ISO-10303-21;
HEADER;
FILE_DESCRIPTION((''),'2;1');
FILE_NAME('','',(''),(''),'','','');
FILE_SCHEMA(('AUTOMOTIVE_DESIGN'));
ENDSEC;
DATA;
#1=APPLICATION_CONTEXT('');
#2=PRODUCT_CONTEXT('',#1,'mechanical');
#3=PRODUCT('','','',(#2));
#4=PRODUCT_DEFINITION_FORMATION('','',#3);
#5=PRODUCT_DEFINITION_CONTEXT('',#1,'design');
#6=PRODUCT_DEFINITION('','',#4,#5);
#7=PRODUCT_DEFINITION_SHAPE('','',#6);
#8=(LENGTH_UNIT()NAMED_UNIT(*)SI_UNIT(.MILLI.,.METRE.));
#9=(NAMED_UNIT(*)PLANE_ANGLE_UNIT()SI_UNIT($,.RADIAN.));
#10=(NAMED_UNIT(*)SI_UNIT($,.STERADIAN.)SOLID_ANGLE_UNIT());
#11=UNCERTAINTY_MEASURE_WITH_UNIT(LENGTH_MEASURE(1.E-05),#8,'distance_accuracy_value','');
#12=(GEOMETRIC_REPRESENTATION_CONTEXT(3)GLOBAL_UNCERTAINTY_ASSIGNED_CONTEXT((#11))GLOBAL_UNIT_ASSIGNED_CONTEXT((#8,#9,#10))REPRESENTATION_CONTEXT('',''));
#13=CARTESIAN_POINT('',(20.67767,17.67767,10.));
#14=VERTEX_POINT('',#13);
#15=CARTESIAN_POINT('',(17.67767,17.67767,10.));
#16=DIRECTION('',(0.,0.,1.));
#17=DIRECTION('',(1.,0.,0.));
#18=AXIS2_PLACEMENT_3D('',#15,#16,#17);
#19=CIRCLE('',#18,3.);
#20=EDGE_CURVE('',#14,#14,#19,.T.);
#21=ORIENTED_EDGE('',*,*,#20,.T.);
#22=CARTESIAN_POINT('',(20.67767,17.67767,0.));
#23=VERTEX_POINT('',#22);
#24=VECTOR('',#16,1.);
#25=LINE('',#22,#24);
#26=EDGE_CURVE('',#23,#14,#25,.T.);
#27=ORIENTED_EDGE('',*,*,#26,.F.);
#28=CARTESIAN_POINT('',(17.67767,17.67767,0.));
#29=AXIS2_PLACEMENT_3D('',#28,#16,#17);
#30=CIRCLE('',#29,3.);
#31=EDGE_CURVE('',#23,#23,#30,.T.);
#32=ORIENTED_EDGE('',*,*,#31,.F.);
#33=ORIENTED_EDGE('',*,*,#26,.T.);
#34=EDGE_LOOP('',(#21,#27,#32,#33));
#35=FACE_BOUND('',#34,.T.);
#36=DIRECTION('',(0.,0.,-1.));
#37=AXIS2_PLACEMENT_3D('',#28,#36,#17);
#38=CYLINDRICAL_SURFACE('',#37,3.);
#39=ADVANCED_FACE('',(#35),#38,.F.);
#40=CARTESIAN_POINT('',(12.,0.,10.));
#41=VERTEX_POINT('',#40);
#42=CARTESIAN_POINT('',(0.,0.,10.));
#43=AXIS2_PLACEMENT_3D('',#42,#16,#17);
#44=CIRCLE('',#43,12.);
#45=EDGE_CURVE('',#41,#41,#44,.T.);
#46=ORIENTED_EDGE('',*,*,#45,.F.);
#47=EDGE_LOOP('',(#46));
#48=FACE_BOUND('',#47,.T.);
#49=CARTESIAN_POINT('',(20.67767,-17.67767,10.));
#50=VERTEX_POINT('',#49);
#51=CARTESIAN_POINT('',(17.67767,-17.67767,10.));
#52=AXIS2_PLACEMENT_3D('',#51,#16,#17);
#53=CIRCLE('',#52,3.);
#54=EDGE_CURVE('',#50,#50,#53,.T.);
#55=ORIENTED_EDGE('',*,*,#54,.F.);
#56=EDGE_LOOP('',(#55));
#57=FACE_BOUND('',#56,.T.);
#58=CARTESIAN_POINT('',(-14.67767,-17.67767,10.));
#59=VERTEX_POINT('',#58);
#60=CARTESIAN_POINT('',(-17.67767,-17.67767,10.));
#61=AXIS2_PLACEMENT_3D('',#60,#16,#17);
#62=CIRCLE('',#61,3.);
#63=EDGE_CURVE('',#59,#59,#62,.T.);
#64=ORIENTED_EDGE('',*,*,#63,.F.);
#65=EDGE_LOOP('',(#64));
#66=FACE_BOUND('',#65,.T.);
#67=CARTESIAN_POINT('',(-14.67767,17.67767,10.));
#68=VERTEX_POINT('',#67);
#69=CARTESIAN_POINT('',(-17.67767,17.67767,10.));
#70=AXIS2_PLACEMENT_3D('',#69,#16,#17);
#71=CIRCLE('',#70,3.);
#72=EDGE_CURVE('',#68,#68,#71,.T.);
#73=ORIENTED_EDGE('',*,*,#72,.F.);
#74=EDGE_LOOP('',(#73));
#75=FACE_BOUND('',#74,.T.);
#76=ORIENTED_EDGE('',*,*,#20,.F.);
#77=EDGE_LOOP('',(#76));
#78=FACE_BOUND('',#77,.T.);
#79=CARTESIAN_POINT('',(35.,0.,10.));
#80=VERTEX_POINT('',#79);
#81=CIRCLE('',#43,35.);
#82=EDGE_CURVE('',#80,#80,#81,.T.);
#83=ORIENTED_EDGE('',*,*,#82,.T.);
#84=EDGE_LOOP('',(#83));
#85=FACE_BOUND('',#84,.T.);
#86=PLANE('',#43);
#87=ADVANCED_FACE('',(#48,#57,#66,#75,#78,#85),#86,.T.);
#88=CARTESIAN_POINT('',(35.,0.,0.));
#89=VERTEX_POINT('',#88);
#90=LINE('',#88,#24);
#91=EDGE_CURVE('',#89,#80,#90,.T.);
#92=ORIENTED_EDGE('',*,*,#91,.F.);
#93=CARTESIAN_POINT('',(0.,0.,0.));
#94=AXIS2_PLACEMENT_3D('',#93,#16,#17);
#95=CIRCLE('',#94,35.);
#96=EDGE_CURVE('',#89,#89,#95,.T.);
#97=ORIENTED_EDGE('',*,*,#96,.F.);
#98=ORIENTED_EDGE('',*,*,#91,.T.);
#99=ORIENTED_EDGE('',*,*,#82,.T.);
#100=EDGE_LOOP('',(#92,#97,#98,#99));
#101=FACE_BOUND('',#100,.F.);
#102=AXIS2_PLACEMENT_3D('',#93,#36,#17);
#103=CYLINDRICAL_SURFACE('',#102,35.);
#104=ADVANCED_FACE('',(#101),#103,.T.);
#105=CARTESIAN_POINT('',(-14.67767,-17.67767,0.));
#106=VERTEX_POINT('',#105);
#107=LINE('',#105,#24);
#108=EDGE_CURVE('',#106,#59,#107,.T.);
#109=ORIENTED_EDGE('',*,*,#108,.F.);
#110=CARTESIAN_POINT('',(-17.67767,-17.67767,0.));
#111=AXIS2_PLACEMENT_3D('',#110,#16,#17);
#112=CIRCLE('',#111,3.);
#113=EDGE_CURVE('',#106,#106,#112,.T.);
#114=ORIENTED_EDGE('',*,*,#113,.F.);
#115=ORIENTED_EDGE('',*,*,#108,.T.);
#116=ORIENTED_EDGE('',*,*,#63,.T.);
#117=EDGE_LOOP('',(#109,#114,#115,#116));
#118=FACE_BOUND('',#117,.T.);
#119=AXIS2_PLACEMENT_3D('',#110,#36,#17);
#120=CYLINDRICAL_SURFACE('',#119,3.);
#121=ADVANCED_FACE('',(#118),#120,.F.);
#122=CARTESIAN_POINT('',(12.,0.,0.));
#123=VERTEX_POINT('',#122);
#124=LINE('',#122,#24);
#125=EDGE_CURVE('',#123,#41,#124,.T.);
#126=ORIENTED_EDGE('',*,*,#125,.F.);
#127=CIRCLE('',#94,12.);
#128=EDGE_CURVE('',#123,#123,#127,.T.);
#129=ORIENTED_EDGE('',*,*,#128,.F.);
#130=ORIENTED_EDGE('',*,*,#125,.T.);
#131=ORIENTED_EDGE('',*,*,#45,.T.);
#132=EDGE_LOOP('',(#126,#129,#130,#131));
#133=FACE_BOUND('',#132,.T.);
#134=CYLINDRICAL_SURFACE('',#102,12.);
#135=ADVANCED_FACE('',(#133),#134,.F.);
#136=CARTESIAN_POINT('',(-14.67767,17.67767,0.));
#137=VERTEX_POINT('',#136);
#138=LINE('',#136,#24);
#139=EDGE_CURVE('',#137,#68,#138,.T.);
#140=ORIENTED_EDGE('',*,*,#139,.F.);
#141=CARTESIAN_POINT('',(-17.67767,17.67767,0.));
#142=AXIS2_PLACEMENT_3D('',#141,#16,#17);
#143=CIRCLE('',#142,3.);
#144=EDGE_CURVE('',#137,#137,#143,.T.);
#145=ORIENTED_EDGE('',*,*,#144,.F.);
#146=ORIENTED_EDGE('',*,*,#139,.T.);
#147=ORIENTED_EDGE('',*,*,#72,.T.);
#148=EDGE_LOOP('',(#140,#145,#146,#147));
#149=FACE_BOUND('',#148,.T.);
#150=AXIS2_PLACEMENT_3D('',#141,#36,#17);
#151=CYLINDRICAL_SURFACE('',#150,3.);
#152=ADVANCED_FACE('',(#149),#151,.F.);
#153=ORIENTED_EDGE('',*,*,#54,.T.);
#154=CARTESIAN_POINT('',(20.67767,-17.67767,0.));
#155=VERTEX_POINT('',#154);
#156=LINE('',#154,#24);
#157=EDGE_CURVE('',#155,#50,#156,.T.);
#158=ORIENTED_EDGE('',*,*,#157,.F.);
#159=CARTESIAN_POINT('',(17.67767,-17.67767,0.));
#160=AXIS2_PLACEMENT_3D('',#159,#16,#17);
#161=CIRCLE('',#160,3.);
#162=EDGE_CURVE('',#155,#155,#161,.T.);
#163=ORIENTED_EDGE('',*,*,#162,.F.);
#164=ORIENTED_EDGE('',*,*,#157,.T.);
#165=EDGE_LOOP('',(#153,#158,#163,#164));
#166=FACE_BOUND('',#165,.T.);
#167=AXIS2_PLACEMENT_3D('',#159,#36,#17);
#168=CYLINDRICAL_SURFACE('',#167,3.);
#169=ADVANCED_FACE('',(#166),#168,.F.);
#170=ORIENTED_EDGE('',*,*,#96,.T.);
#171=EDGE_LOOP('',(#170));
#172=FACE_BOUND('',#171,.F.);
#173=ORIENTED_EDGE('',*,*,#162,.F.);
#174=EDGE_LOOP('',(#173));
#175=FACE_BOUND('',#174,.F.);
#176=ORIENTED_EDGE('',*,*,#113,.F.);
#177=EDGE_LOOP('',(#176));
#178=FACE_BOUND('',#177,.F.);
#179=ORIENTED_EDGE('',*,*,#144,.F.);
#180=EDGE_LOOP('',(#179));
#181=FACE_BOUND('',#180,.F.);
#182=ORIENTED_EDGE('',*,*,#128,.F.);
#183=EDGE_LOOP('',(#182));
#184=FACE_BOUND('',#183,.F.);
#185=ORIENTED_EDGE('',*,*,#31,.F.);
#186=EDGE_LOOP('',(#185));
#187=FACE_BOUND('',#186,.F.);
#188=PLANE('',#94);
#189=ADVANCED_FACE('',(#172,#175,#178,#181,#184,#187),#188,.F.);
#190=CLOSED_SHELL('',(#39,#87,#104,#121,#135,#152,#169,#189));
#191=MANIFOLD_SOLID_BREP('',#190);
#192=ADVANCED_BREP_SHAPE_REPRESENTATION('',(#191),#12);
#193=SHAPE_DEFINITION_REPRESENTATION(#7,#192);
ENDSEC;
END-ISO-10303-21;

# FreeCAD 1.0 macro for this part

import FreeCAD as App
import Part
import Sketcher
from FreeCAD import Vector
Q = App.Units.Quantity

doc = App.newDocument("Part")
body = doc.addObject("PartDesign::Body", "Body")

# Sketch on XY plane
sketch1 = body.newObject("Sketcher::SketchObject", "Sketch")
sketch1.AttachmentSupport = (doc.getObject("XY_Plane"), [""])
sketch1.MapMode = "FlatFace"
sketch1.addGeometry([
    Part.Circle(Vector(0, 0, 0), Vector(0, 0, 1), 35),  # 0
    Part.Circle(Vector(-17.7, -17.7, 0), Vector(0, 0, 1), 3),  # 1
    Part.Circle(Vector(0, 0, 0), Vector(0, 0, 1), 12),  # 2
    Part.Circle(Vector(17.7, -17.7, 0), Vector(0, 0, 1), 3),  # 3
    Part.Circle(Vector(-17.7, 17.7, 0), Vector(0, 0, 1), 3),  # 4
    Part.Circle(Vector(17.7, 17.7, 0), Vector(0, 0, 1), 3),  # 5
], False)
sketch1.addConstraint([
    Sketcher.Constraint("Coincident", 0, 3, -1, 1),
    Sketcher.Constraint("Coincident", 2, 3, -1, 1),
    Sketcher.Constraint("Equal", 1, 3),
    Sketcher.Constraint("Equal", 3, 4),
    Sketcher.Constraint("Equal", 4, 5),
    Sketcher.Constraint("Symmetric", 3, 3, 4, 3, -1, 1),
    Sketcher.Constraint("Symmetric", 1, 3, 5, 3, -1, 1),
    Sketcher.Constraint("Symmetric", 1, 3, 3, 3, -2),
    Sketcher.Constraint("Diameter", 0, Q("70 mm")),
    Sketcher.Constraint("Diameter", 1, Q("6 mm")),
    Sketcher.Constraint("Diameter", 2, Q("24 mm")),
    Sketcher.Constraint("DistanceX", 1, 3, -1, 1, Q("17.67767 mm")),
    Sketcher.Constraint("DistanceY", 1, 3, -1, 1, Q("17.67767 mm")),
])
pad1 = body.newObject("PartDesign::Pad", "Pad")
pad1.Profile = sketch1
pad1.Length = 10

doc.recompute()
